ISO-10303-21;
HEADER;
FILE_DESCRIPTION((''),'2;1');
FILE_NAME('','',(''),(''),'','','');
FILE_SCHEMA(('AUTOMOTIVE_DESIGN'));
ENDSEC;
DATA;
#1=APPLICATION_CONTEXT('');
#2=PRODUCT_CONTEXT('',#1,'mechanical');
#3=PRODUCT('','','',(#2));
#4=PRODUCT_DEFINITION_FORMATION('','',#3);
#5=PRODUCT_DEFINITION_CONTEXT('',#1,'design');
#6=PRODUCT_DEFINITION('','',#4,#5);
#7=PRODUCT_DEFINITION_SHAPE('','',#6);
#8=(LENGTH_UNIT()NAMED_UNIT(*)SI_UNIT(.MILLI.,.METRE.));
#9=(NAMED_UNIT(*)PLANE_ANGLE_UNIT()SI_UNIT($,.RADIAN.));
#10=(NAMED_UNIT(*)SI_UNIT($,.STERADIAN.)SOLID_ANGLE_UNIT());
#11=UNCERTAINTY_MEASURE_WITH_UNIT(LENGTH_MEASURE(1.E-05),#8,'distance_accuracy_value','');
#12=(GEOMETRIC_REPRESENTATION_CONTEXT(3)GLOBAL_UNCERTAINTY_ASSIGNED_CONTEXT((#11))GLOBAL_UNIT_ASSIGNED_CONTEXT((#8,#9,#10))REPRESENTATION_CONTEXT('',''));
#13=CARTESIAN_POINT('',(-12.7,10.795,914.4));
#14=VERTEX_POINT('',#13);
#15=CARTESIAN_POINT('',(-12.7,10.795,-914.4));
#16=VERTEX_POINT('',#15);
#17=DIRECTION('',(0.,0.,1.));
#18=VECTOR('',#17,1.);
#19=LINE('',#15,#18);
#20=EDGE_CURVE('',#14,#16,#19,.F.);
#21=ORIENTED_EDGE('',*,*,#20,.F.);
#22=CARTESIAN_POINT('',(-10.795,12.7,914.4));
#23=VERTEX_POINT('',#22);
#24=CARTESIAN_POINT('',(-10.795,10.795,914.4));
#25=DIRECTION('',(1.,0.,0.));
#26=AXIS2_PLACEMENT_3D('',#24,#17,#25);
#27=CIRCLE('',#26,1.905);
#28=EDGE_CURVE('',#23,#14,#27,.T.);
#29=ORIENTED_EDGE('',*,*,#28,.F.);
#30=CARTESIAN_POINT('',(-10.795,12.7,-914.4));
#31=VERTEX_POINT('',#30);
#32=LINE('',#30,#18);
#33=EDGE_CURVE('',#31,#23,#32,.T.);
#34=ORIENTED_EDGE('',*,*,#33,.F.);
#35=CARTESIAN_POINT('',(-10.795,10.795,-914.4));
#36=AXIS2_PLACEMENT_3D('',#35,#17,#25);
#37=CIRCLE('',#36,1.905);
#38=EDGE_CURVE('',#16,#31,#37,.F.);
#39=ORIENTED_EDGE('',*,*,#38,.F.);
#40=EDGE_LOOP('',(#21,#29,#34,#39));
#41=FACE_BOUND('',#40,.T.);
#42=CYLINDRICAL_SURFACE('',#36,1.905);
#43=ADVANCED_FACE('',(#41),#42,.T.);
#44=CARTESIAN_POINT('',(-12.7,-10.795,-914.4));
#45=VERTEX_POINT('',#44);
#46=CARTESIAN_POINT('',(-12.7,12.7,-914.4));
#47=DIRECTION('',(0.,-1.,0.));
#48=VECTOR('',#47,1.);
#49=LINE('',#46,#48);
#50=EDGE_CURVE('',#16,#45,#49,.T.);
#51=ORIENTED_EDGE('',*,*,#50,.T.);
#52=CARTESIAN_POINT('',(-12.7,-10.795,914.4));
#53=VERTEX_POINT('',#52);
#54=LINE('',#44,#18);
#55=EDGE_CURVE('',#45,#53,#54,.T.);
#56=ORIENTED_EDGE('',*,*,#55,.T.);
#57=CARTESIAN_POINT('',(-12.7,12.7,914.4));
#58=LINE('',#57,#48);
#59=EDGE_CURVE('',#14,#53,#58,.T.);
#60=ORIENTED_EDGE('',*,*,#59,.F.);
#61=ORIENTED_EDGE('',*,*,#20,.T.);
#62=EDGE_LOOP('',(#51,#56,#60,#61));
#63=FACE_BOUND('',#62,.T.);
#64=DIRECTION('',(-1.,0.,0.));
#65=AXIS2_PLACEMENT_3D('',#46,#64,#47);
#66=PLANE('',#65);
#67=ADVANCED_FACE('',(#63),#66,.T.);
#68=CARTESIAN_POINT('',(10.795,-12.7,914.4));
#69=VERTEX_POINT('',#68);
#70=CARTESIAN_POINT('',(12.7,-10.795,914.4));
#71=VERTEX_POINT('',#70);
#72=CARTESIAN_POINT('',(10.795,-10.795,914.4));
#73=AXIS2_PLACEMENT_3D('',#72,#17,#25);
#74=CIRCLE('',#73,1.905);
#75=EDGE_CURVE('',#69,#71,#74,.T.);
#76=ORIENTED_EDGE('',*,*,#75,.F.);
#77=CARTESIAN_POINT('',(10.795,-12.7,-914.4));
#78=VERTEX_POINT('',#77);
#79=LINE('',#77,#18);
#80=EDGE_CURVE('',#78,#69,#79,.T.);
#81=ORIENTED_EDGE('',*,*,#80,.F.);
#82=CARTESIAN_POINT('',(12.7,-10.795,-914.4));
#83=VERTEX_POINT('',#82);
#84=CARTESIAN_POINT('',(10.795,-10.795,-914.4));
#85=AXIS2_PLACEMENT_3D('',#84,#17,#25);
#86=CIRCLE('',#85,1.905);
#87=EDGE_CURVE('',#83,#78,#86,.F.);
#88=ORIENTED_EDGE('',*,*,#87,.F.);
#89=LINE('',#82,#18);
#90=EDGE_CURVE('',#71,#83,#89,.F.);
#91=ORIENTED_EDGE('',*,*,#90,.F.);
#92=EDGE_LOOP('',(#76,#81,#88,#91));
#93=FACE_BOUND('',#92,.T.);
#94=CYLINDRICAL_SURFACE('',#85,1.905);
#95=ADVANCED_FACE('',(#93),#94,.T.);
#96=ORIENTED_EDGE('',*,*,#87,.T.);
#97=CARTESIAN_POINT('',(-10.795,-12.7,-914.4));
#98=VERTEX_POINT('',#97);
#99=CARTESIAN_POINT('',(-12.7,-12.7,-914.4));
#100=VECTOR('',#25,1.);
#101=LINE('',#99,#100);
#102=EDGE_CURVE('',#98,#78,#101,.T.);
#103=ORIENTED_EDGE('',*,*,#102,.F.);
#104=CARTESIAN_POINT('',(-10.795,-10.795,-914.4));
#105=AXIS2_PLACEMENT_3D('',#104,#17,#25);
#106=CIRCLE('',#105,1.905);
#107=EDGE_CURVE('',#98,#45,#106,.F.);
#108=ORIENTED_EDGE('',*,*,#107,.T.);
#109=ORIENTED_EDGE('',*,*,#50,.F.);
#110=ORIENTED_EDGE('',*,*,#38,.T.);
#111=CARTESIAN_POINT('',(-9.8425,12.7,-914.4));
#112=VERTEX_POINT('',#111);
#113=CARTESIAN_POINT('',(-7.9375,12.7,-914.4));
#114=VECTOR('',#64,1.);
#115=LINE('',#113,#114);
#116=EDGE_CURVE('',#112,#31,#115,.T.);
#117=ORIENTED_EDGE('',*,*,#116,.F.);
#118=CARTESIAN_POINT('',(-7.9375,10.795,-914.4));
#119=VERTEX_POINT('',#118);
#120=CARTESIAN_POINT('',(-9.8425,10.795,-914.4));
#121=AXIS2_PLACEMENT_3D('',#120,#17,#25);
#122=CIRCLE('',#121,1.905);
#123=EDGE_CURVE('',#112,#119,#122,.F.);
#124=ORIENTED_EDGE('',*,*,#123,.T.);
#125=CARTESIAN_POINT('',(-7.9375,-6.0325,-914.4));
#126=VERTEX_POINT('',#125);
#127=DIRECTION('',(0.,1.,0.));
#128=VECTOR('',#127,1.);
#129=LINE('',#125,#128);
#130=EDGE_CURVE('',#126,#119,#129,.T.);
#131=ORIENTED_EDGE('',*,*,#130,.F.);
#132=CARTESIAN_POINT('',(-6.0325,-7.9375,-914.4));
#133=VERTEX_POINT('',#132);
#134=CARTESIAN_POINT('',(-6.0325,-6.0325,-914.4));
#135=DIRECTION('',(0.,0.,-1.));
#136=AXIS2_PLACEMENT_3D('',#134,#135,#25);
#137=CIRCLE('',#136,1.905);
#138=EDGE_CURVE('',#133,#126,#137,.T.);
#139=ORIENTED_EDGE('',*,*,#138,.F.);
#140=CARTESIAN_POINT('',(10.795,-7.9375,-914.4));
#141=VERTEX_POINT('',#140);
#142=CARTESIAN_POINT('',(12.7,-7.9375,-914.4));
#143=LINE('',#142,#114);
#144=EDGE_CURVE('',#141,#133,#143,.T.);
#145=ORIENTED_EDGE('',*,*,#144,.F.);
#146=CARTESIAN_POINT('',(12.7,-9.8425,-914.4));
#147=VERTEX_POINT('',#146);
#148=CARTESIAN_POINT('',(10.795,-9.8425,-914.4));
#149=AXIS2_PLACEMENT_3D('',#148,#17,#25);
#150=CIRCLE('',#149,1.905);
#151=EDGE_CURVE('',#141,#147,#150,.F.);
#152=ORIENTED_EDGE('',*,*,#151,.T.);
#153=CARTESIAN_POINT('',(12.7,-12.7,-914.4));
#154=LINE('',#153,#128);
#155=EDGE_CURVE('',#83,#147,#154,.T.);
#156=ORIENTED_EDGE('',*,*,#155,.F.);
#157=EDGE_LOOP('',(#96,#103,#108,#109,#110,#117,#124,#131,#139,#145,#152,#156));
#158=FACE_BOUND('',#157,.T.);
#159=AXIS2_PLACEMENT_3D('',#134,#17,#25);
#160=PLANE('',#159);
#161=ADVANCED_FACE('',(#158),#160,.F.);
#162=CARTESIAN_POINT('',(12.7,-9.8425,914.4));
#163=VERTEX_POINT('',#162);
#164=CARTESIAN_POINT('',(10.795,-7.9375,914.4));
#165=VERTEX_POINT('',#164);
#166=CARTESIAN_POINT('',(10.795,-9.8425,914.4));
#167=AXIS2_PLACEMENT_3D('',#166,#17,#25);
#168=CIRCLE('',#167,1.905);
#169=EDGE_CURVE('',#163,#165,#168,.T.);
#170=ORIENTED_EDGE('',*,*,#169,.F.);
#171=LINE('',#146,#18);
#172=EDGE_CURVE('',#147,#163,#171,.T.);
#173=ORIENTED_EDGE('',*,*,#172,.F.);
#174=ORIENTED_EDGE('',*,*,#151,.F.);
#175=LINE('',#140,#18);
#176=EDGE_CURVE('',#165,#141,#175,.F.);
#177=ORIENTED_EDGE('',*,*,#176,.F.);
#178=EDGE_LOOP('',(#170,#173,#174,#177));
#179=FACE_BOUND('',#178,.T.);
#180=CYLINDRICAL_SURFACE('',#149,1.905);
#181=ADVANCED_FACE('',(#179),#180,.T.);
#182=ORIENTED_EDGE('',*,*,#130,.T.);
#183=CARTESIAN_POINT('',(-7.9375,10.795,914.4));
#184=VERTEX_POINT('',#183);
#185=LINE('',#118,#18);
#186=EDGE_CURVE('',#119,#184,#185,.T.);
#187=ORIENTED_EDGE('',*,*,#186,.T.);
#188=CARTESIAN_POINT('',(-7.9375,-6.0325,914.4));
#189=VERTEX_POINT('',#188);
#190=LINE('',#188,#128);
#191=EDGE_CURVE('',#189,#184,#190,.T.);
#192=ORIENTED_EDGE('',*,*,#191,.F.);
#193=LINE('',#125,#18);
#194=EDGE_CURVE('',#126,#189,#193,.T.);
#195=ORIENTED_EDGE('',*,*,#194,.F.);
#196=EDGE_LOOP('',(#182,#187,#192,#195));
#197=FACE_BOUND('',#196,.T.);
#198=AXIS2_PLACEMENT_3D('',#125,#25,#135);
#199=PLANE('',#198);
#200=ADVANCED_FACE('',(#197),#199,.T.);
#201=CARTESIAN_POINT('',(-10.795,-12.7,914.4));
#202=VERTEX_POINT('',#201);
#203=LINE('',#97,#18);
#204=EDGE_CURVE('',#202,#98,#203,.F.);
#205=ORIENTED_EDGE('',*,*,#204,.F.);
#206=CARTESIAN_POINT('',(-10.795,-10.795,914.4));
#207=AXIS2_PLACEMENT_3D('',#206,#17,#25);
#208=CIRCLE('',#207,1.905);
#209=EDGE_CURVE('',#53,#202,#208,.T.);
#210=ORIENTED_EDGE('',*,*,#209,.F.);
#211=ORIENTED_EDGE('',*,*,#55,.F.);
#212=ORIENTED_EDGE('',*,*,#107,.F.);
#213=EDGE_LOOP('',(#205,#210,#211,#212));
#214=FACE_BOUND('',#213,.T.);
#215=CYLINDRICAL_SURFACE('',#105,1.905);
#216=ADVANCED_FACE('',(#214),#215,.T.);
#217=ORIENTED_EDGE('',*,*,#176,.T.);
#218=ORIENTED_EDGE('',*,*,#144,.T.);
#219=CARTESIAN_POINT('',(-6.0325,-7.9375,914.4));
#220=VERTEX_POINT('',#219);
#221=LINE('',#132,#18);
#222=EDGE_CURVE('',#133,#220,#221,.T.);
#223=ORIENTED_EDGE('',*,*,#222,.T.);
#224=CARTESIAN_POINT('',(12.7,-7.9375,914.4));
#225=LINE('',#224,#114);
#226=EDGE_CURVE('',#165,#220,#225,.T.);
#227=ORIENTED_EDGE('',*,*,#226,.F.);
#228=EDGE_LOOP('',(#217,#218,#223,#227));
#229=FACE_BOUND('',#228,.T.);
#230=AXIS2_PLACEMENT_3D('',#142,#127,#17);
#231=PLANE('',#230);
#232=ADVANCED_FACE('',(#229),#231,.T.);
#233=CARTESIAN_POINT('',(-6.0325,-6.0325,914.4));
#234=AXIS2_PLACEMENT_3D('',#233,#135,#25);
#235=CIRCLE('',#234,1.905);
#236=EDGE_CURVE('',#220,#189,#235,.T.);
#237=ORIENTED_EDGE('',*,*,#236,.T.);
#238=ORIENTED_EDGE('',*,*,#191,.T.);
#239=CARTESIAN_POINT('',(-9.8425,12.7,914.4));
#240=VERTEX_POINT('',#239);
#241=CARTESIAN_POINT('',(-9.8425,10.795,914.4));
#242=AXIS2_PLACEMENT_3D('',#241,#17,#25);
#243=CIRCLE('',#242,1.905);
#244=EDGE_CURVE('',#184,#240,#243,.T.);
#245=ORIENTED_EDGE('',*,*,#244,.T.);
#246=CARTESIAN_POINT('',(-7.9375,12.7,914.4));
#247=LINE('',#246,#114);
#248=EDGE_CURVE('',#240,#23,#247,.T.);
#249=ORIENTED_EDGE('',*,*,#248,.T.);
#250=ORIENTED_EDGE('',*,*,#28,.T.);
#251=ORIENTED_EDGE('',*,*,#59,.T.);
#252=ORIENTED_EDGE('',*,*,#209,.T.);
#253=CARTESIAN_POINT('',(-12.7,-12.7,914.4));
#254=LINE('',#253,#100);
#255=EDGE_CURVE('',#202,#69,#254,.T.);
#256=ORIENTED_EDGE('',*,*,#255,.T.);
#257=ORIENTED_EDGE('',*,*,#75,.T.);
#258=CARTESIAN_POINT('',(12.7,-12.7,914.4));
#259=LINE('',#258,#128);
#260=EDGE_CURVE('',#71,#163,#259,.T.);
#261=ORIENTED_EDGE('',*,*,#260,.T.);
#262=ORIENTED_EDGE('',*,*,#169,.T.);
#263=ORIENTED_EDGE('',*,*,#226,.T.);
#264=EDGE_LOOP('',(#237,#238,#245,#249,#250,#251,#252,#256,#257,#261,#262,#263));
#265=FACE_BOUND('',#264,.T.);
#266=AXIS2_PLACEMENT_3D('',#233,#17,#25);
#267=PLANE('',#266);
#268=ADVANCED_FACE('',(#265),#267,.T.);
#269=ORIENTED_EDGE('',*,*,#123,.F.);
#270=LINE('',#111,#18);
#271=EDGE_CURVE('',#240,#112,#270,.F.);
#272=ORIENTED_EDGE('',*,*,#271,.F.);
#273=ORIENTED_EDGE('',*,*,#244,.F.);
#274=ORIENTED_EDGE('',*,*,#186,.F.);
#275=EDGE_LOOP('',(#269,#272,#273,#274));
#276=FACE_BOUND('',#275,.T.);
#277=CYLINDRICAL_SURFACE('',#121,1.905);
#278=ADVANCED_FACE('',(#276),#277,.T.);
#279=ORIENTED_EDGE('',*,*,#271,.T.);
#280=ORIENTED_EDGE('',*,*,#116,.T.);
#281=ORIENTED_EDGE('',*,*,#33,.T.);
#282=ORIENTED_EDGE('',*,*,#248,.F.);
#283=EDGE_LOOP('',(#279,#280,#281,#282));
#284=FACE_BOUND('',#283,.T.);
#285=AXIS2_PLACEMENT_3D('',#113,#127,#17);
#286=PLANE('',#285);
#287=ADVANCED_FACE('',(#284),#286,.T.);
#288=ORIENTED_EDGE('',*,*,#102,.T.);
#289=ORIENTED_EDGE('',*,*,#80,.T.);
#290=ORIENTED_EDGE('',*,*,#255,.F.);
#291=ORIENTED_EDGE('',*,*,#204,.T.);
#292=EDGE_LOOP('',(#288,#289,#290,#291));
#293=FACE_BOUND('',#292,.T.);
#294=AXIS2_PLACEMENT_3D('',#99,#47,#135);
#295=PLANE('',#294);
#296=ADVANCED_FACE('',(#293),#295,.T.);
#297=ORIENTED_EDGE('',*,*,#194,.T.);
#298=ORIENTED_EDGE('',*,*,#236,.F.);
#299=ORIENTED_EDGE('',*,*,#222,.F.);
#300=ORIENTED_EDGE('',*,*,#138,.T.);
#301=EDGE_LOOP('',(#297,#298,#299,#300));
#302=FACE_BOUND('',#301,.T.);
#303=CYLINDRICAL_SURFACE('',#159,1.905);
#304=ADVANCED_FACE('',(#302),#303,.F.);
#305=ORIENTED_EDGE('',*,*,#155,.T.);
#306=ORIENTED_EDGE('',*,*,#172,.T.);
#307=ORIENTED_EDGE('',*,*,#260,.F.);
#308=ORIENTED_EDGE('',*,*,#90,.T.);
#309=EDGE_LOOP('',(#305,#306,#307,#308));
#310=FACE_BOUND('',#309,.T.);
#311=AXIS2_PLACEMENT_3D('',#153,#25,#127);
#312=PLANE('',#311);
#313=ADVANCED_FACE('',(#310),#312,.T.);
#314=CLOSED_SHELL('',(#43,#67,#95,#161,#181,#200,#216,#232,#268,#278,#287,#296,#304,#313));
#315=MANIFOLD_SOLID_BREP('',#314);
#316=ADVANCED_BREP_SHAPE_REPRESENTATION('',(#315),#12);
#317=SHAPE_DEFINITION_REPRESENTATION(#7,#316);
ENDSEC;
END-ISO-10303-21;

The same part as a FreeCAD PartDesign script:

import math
import FreeCAD as App
import Part
import Sketcher
from FreeCAD import Vector
Q = App.Units.Quantity


def edges_at(feature, points):
    """Names of the edges that pass closest to the given points."""
    edges = feature.Shape.Edges
    near = lambda p: min(range(len(edges)), key=lambda i: edges[i].distToShape(Part.Vertex(*p))[0])
    return sorted({f"Edge{near(p) + 1}" for p in points})

doc = App.newDocument("Part")
body = doc.addObject("PartDesign::Body", "Body")

sketch1 = doc.addObject("Sketcher::SketchObject", "Sketch")
body.addObject(sketch1)
sketch1.AttachmentSupport = (doc.XY_Plane, [""])
sketch1.MapMode = "FlatFace"
sketch1.addGeometry([
    Part.LineSegment(Vector(-7.9375, -6.0325, 0), Vector(-7.9375, 12.7, 0)),
    Part.LineSegment(Vector(-7.9375, 12.7, 0), Vector(-12.7, 12.7, 0)),
    Part.LineSegment(Vector(-12.7, 12.7, 0), Vector(-12.7, -12.7, 0)),
    Part.LineSegment(Vector(-12.7, -12.7, 0), Vector(12.7, -12.7, 0)),
    Part.LineSegment(Vector(12.7, -12.7, 0), Vector(12.7, -7.9375, 0)),
    Part.LineSegment(Vector(12.7, -7.9375, 0), Vector(-6.0325, -7.9375, 0)),
    Part.ArcOfCircle(Part.Circle(Vector(-6.0325, -6.0325, 0), Vector(0, 0, 1), 1.905), math.radians(-180), math.radians(-90)),
], False)
sketch1.addConstraint([
    Sketcher.Constraint("Coincident", 0, 2, 1, 1),
    Sketcher.Constraint("Coincident", 1, 2, 2, 1),
    Sketcher.Constraint("Coincident", 2, 2, 3, 1),
    Sketcher.Constraint("Coincident", 3, 2, 4, 1),
    Sketcher.Constraint("Coincident", 4, 2, 5, 1),
    Sketcher.Constraint("Tangent", 5, 2, 6, 2),
    Sketcher.Constraint("Tangent", 6, 1, 0, 1),
    Sketcher.Constraint("Vertical", 0),
    Sketcher.Constraint("Horizontal", 1),
    Sketcher.Constraint("Vertical", 2),
    Sketcher.Constraint("Horizontal", 3),
    Sketcher.Constraint("Vertical", 4),
    Sketcher.Constraint("Horizontal", 5),
    Sketcher.Constraint("Symmetric", 1, 2, 3, 2, -1, 1),
    Sketcher.Constraint("Equal", 5, 0),
    Sketcher.Constraint("Equal", 3, 2),
    Sketcher.Constraint("DistanceX", 3, 1, 3, 2, Q("1 in")),
    Sketcher.Constraint("Radius", 6, Q("0.075 in")),
    Sketcher.Constraint("DistanceX", 1, 2, 1, 1, Q("0.1875 in")),
])
pad1 = doc.addObject("PartDesign::Pad", "Pad")
body.addObject(pad1)
pad1.Profile = sketch1
pad1.Type = "TwoLengths"
pad1.Length = Q("36 in")
pad1.Length2 = Q("36 in")
doc.recompute()

fillet = doc.addObject("PartDesign::Fillet", "Fillet")
body.addObject(fillet)
fillet.Base = (pad1, edges_at(pad1, [
    (-7.938, 12.7, 0),
    (12.7, -7.938, 0),
    (12.7, -12.7, 0),
    (-12.7, -12.7, 0),
    (-12.7, 12.7, 0),
]))
fillet.Radius = Q("0.075 in")

doc.recompute()
